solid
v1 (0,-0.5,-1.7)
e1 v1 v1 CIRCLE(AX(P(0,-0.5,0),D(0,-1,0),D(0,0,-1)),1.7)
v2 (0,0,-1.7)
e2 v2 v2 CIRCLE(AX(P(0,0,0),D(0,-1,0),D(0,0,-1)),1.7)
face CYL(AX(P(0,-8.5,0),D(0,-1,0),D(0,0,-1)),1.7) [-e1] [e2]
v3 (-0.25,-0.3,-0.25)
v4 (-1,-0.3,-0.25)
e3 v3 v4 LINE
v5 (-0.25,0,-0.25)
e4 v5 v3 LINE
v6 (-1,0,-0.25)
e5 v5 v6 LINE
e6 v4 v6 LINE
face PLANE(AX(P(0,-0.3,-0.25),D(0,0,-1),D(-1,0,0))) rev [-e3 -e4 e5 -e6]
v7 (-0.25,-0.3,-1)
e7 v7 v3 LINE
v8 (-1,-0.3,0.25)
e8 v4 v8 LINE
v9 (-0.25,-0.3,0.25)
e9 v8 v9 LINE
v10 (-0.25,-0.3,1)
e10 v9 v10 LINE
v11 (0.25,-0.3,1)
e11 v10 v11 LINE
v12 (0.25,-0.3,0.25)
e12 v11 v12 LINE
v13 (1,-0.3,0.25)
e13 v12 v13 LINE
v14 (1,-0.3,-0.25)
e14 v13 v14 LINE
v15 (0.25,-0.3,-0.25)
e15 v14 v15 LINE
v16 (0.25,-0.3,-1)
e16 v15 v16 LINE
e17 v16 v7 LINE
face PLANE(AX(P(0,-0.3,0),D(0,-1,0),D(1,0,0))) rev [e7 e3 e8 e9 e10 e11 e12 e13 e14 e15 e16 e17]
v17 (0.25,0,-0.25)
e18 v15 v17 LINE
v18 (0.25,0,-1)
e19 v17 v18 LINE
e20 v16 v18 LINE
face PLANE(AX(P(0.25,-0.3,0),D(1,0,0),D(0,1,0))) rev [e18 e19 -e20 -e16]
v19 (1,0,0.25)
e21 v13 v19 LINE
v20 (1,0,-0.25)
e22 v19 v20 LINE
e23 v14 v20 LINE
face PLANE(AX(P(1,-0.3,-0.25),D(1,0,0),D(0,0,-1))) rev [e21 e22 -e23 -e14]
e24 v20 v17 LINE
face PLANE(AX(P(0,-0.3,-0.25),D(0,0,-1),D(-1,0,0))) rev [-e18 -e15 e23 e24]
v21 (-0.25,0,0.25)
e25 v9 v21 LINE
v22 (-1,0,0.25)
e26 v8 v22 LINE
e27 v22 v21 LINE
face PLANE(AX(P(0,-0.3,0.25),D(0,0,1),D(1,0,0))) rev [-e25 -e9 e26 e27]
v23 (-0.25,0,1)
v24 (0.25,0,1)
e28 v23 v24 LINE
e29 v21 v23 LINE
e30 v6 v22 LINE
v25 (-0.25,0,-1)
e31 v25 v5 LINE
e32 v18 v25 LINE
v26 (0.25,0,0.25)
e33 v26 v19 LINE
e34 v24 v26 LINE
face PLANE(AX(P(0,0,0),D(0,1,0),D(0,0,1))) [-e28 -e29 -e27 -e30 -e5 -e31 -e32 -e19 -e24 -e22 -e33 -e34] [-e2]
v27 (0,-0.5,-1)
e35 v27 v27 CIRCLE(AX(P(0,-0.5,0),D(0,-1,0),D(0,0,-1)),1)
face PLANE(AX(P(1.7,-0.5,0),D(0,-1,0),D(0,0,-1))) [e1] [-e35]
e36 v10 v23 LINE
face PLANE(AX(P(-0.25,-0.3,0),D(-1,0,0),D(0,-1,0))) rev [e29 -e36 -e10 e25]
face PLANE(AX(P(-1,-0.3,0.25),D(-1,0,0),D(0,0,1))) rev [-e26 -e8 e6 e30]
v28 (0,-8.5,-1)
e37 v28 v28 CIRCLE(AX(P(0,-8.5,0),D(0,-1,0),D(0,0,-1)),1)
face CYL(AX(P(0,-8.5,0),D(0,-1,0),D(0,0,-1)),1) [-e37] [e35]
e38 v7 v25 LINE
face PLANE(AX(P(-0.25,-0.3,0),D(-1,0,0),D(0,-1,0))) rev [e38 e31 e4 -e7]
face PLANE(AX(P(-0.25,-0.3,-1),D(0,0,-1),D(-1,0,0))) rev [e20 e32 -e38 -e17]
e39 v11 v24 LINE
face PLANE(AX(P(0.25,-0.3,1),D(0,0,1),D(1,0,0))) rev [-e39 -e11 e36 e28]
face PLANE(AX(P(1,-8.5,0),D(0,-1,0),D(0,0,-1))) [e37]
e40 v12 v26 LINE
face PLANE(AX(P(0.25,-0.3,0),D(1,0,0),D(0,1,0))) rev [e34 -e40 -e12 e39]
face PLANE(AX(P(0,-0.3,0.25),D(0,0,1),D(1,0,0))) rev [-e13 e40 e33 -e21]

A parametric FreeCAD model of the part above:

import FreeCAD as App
import Part
import Sketcher

doc = App.newDocument("Part")
body = doc.addObject("PartDesign::Body", "Body")

sketch1 = body.newObject("Sketcher::SketchObject", "Sketch")
sketch1.AttachmentSupport = (doc.getObject("XY_Plane"), [""])
sketch1.MapMode = "FlatFace"
sketch1.addGeometry(Part.LineSegment(App.Vector(1.7, 0, 0), App.Vector(0, 0, 0)), False)
sketch1.addGeometry(Part.LineSegment(App.Vector(0, 0, 0), App.Vector(0, -8.5, 0)), False)
sketch1.addGeometry(Part.LineSegment(App.Vector(0, -8.5, 0), App.Vector(1, -8.5, 0)), False)
sketch1.addGeometry(Part.LineSegment(App.Vector(1, -8.5, 0), App.Vector(1, -0.5, 0)), False)
sketch1.addGeometry(Part.LineSegment(App.Vector(1, -0.5, 0), App.Vector(1.7, -0.5, 0)), False)
sketch1.addGeometry(Part.LineSegment(App.Vector(1.7, -0.5, 0), App.Vector(1.7, 0, 0)), False)
sketch1.addConstraint(Sketcher.Constraint("Coincident", 0, 2, 1, 1))
sketch1.addConstraint(Sketcher.Constraint("Coincident", 1, 2, 2, 1))
sketch1.addConstraint(Sketcher.Constraint("Coincident", 2, 2, 3, 1))
sketch1.addConstraint(Sketcher.Constraint("Coincident", 3, 2, 4, 1))
sketch1.addConstraint(Sketcher.Constraint("Coincident", 4, 2, 5, 1))
sketch1.addConstraint(Sketcher.Constraint("Coincident", 5, 2, 0, 1))
sketch1.addConstraint(Sketcher.Constraint("Horizontal", 0))
sketch1.addConstraint(Sketcher.Constraint("Vertical", 1))
sketch1.addConstraint(Sketcher.Constraint("Horizontal", 2))
sketch1.addConstraint(Sketcher.Constraint("Vertical", 3))
sketch1.addConstraint(Sketcher.Constraint("Horizontal", 4))
sketch1.addConstraint(Sketcher.Constraint("Vertical", 5))
sketch1.addConstraint(Sketcher.Constraint("Coincident", 0, 2, -1, 1))
sketch1.addConstraint(Sketcher.Constraint("DistanceX", 2, 1, 2, 2, 1.0))
sketch1.addConstraint(Sketcher.Constraint("DistanceY", 3, 1, 3, 2, 8.0))
sketch1.addConstraint(Sketcher.Constraint("DistanceX", 0, 2, 0, 1, 1.7))
sketch1.addConstraint(Sketcher.Constraint("DistanceY", 1, 2, 1, 1, 8.5))
revolution = body.newObject("PartDesign::Revolution", "Revolution")
revolution.Profile = sketch1
revolution.ReferenceAxis = (sketch1, ["V_Axis"])
revolution.Angle = 360

sketch2 = body.newObject("Sketcher::SketchObject", "Sketch001")
sketch2.AttachmentSupport = (doc.getObject("XZ_Plane"), [""])
sketch2.MapMode = "FlatFace"
sketch2.addGeometry(Part.LineSegment(App.Vector(-0.2, -1, 0), App.Vector(-0.2, 0, 0)), False)
sketch2.addGeometry(Part.LineSegment(App.Vector(-0.2, 0, 0), App.Vector(0.2, 0, 0)), False)
sketch2.addGeometry(Part.LineSegment(App.Vector(0.2, 0, 0), App.Vector(0.2, -1, 0)), False)
sketch2.addGeometry(Part.LineSegment(App.Vector(0.2, -1, 0), App.Vector(-0.2, -1, 0)), False)
sketch2.addConstraint(Sketcher.Constraint("Coincident", 0, 2, 1, 1))
sketch2.addConstraint(Sketcher.Constraint("Coincident", 1, 2, 2, 1))
sketch2.addConstraint(Sketcher.Constraint("Coincident", 2, 2, 3, 1))
sketch2.addConstraint(Sketcher.Constraint("Coincident", 3, 2, 0, 1))
sketch2.addConstraint(Sketcher.Constraint("Vertical", 0))
sketch2.addConstraint(Sketcher.Constraint("Horizontal", 1))
sketch2.addConstraint(Sketcher.Constraint("Vertical", 2))
sketch2.addConstraint(Sketcher.Constraint("Horizontal", 3))
sketch2.addConstraint(Sketcher.Constraint("Symmetric", 0, 2, 1, 2, -1, 1))
sketch2.addConstraint(Sketcher.Constraint("DistanceY", 0, 1, 0, 2, 1.0))
sketch2.addConstraint(Sketcher.Constraint("DistanceX", 1, 1, 1, 2, 0.5))
pocket1 = body.newObject("PartDesign::Pocket", "Pocket")
pocket1.Profile = sketch2
pocket1.Length = 0.3
pocket1.Reversed = True
doc.recompute()

polarpattern = body.newObject("PartDesign::PolarPattern", "PolarPattern")
polarpattern.Originals = [pocket1]
polarpattern.Axis = (doc.getObject("Y_Axis"), [""])
polarpattern.Angle = 360
polarpattern.Occurrences = 4
body.Tip = polarpattern

doc.recompute()
